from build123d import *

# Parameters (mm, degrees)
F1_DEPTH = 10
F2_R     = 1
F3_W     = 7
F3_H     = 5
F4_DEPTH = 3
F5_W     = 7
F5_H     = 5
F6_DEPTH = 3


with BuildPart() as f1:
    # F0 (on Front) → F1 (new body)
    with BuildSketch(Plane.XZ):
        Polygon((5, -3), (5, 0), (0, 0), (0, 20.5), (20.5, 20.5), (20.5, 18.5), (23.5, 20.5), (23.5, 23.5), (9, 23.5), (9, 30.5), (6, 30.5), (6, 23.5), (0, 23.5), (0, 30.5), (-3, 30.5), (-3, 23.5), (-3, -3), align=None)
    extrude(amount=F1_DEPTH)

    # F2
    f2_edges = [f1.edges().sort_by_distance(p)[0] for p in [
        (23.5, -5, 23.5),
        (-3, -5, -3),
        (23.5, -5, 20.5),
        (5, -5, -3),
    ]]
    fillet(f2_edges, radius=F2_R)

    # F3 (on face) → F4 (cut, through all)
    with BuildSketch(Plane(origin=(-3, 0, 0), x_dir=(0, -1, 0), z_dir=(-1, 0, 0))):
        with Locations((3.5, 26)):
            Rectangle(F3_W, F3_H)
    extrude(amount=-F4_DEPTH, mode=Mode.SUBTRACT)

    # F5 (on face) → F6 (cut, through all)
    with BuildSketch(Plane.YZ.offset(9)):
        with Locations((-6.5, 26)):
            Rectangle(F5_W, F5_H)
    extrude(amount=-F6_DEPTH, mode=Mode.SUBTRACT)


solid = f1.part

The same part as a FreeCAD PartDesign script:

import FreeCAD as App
import Part
import Sketcher
from FreeCAD import Vector


def edges_at(feature, points):
    """Names of the edges that pass closest to the given points."""
    edges = feature.Shape.Edges
    near = lambda p: min(range(len(edges)), key=lambda i: edges[i].distToShape(Part.Vertex(*p))[0])
    return sorted({f"Edge{near(p) + 1}" for p in points})

doc = App.newDocument("Part")
body = doc.addObject("PartDesign::Body", "Body")

# Sketch on XZ plane
sketch1 = body.newObject("Sketcher::SketchObject", "Sketch")
sketch1.AttachmentSupport = (doc.getObject("XZ_Plane"), [""])
sketch1.MapMode = "FlatFace"
sketch1.addGeometry([
    Part.LineSegment(Vector(5, -3, 0), Vector(5, 0, 0)),  # 0
    Part.LineSegment(Vector(5, 0, 0), Vector(0, 0, 0)),  # 1
    Part.LineSegment(Vector(0, 0, 0), Vector(0, 20.5, 0)),  # 2
    Part.LineSegment(Vector(0, 20.5, 0), Vector(20.5, 20.5, 0)),  # 3
    Part.LineSegment(Vector(20.5, 20.5, 0), Vector(20.5, 18.5, 0)),  # 4
    Part.LineSegment(Vector(20.5, 18.5, 0), Vector(23.5, 20.5, 0)),  # 5
    Part.LineSegment(Vector(23.5, 20.5, 0), Vector(23.5, 23.5, 0)),  # 6
    Part.LineSegment(Vector(23.5, 23.5, 0), Vector(9, 23.5, 0)),  # 7
    Part.LineSegment(Vector(9, 23.5, 0), Vector(9, 30.5, 0)),  # 8
    Part.LineSegment(Vector(9, 30.5, 0), Vector(6, 30.5, 0)),  # 9
    Part.LineSegment(Vector(6, 30.5, 0), Vector(6, 23.5, 0)),  # 10
    Part.LineSegment(Vector(6, 23.5, 0), Vector(0, 23.5, 0)),  # 11
    Part.LineSegment(Vector(0, 23.5, 0), Vector(0, 30.5, 0)),  # 12
    Part.LineSegment(Vector(0, 30.5, 0), Vector(-3, 30.5, 0)),  # 13
    Part.LineSegment(Vector(-3, 30.5, 0), Vector(-3, -3, 0)),  # 14
    Part.LineSegment(Vector(-3, -3, 0), Vector(5, -3, 0)),  # 15
], False)
sketch1.addConstraint([
    Sketcher.Constraint("Coincident", 0, 2, 1, 1),
    Sketcher.Constraint("Coincident", 1, 2, 2, 1),
    Sketcher.Constraint("Coincident", 2, 2, 3, 1),
    Sketcher.Constraint("Coincident", 3, 2, 4, 1),
    Sketcher.Constraint("Coincident", 4, 2, 5, 1),
    Sketcher.Constraint("Coincident", 5, 2, 6, 1),
    Sketcher.Constraint("Coincident", 6, 2, 7, 1),
    Sketcher.Constraint("Coincident", 7, 2, 8, 1),
    Sketcher.Constraint("Coincident", 8, 2, 9, 1),
    Sketcher.Constraint("Coincident", 9, 2, 10, 1),
    Sketcher.Constraint("Coincident", 10, 2, 11, 1),
    Sketcher.Constraint("Coincident", 11, 2, 12, 1),
    Sketcher.Constraint("Coincident", 12, 2, 13, 1),
    Sketcher.Constraint("Coincident", 13, 2, 14, 1),
    Sketcher.Constraint("Coincident", 14, 2, 15, 1),
    Sketcher.Constraint("Coincident", 15, 2, 0, 1),
    Sketcher.Constraint("Vertical", 0),
    Sketcher.Constraint("Horizontal", 1),
    Sketcher.Constraint("Vertical", 2),
    Sketcher.Constraint("Horizontal", 3),
    Sketcher.Constraint("Vertical", 4),
    Sketcher.Constraint("Vertical", 6),
    Sketcher.Constraint("Horizontal", 7),
    Sketcher.Constraint("Vertical", 8),
    Sketcher.Constraint("Horizontal", 9),
    Sketcher.Constraint("Vertical", 10),
    Sketcher.Constraint("Horizontal", 11),
    Sketcher.Constraint("Vertical", 12),
    Sketcher.Constraint("Horizontal", 13),
    Sketcher.Constraint("Vertical", 14),
    Sketcher.Constraint("Horizontal", 15),
    Sketcher.Constraint("Coincident", 1, 2, -1, 1),
    Sketcher.Constraint("PointOnObject", 11, 2, -2),
    Sketcher.Constraint("Horizontal", 3, 2, 5, 2),
    Sketcher.Constraint("Horizontal", 7, 2, 10, 2),
    Sketcher.Constraint("Horizontal", 9, 2, 12, 2),
    Sketcher.Constraint("Equal", 9, 13),
    Sketcher.Constraint("Equal", 13, 0),
    Sketcher.Constraint("Equal", 3, 2),
    Sketcher.Constraint("Equal", 0, 6),
    Sketcher.Constraint("DistanceX", 1, 2, 1, 1, 5.0),
    Sketcher.Constraint("DistanceX", 9, 2, 9, 1, 3.0),
    Sketcher.Constraint("DistanceX", 11, 2, 11, 1, 6.0),
    Sketcher.Constraint("DistanceY", 4, 2, 4, 1, 2.0),
    Sketcher.Constraint("DistanceY", 8, 1, 8, 2, 7.0),
    Sketcher.Constraint("DistanceX", 3, 1, 3, 2, 20.5),
    Sketcher.Constraint("DistanceX", 7, 2, 7, 1, 14.5),
])
pad1 = body.newObject("PartDesign::Pad", "Pad")
pad1.Profile = sketch1
pad1.Length = 10
doc.recompute()

fillet = body.newObject("PartDesign::Fillet", "Fillet")
fillet.Base = (pad1, edges_at(pad1, [
    (23.5, -5, 23.5),
    (-3, -5, -3),
    (23.5, -5, 20.5),
    (5, -5, -3),
]))
fillet.Radius = 1

# Sketch on YZ plane
sketch2 = body.newObject("Sketcher::SketchObject", "Sketch001")
sketch2.AttachmentSupport = (doc.getObject("YZ_Plane"), [""])
sketch2.MapMode = "FlatFace"
sketch2.AttachmentOffset = App.Placement(Vector(0, 0, -3), App.Rotation())
sketch2.addGeometry([
    Part.LineSegment(Vector(0, 28, 0), Vector(0, 24, 0)),
    Part.LineSegment(Vector(0, 24, 0), Vector(-7, 24, 0)),
    Part.LineSegment(Vector(-7, 24, 0), Vector(-7, 28, 0)),
    Part.LineSegment(Vector(-7, 28, 0), Vector(0, 28, 0)),
], False)
sketch2.addConstraint([
    Sketcher.Constraint("Coincident", 0, 2, 1, 1),
    Sketcher.Constraint("Coincident", 1, 2, 2, 1),
    Sketcher.Constraint("Coincident", 2, 2, 3, 1),
    Sketcher.Constraint("Coincident", 3, 2, 0, 1),
    Sketcher.Constraint("Vertical", 0),
    Sketcher.Constraint("Horizontal", 1),
    Sketcher.Constraint("Vertical", 2),
    Sketcher.Constraint("Horizontal", 3),
    Sketcher.Constraint("PointOnObject", 0, 2, -2),
    Sketcher.Constraint("DistanceX", 1, 2, 1, 1, 7.0),
    Sketcher.Constraint("DistanceY", 0, 2, 0, 1, 5.0),
    Sketcher.Constraint("DistanceY", -1, 1, 0, 2, 23.5),
])
pocket1 = body.newObject("PartDesign::Pocket", "Pocket")
pocket1.Profile = sketch2
pocket1.Length = 3
pocket1.Reversed = True

# Sketch on YZ plane
sketch3 = body.newObject("Sketcher::SketchObject", "Sketch002")
sketch3.AttachmentSupport = (doc.getObject("YZ_Plane"), [""])
sketch3.MapMode = "FlatFace"
sketch3.AttachmentOffset = App.Placement(Vector(0, 0, 9), App.Rotation())
sketch3.addGeometry([
    Part.LineSegment(Vector(-10, 28, 0), Vector(-10, 24, 0)),
    Part.LineSegment(Vector(-10, 24, 0), Vector(-3, 24, 0)),
    Part.LineSegment(Vector(-3, 24, 0), Vector(-3, 28, 0)),
    Part.LineSegment(Vector(-3, 28, 0), Vector(-10, 28, 0)),
], False)
sketch3.addConstraint([
    Sketcher.Constraint("Coincident", 0, 2, 1, 1),
    Sketcher.Constraint("Coincident", 1, 2, 2, 1),
    Sketcher.Constraint("Coincident", 2, 2, 3, 1),
    Sketcher.Constraint("Coincident", 3, 2, 0, 1),
    Sketcher.Constraint("Vertical", 0),
    Sketcher.Constraint("Horizontal", 1),
    Sketcher.Constraint("Vertical", 2),
    Sketcher.Constraint("Horizontal", 3),
    Sketcher.Constraint("DistanceX", 1, 1, 1, 2, 7.0),
    Sketcher.Constraint("DistanceY", 0, 2, 0, 1, 5.0),
    Sketcher.Constraint("DistanceX", 0, 2, -1, 1, 10.0),
    Sketcher.Constraint("DistanceY", -1, 1, 0, 2, 23.5),
])
pocket2 = body.newObject("PartDesign::Pocket", "Pocket001")
pocket2.Profile = sketch3
pocket2.Length = 3

doc.recompute()
